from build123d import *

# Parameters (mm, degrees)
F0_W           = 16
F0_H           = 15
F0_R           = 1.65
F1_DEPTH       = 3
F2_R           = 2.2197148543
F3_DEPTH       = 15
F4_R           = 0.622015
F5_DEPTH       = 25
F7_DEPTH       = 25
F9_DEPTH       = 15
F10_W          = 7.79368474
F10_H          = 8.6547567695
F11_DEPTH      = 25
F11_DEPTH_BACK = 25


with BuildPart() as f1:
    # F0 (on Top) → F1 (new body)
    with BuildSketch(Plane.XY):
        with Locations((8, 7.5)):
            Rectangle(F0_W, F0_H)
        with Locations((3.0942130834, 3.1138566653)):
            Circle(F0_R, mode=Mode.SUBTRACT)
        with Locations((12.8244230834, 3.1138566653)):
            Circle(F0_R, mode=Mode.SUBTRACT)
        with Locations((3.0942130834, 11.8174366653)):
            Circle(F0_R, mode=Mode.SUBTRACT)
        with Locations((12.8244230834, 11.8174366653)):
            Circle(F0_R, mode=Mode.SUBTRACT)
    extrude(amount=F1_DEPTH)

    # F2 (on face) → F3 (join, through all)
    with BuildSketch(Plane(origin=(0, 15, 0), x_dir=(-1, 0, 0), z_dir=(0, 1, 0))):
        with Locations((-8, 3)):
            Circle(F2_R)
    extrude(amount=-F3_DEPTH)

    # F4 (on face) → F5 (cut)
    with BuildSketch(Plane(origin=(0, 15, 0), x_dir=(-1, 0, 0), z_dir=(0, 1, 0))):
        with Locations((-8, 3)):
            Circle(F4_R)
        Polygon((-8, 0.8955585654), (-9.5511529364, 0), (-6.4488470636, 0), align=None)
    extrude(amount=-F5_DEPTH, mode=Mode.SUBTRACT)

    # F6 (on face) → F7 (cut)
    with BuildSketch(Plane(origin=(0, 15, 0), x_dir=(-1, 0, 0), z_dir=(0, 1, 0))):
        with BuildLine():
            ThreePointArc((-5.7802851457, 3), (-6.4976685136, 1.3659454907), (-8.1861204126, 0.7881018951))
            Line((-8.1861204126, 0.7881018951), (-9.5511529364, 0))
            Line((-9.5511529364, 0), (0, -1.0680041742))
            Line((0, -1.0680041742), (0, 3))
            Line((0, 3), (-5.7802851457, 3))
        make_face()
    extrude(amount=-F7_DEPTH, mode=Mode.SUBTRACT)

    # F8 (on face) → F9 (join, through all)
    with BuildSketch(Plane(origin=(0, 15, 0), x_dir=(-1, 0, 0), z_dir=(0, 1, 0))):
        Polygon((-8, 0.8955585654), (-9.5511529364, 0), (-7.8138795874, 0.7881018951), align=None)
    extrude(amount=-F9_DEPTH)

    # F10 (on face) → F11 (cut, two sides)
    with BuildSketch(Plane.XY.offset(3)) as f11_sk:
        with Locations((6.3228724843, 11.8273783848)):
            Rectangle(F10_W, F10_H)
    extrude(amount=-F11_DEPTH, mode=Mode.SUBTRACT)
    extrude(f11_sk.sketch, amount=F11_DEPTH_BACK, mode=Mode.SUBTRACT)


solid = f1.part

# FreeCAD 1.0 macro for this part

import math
import FreeCAD as App
import Part
import Sketcher
from FreeCAD import Vector
Q = App.Units.Quantity


def add_polygon(sketch, points):
    """Adds a closed chain of lines whose ends are joined by coincident constraints."""
    first, n = sketch.GeometryCount, len(points)
    for a, b in zip(points, points[1:] + points[:1]):
        sketch.addGeometry(Part.LineSegment(App.Vector(*a, 0), App.Vector(*b, 0)), False)
    for i in range(n):
        sketch.addConstraint(Sketcher.Constraint("Coincident", first + i, 2, first + (i + 1) % n, 1))

doc = App.newDocument("Part")
params = doc.addObject("Spreadsheet::Sheet", "Params")
for row, (alias, value) in enumerate([
    ("sketch1_diameter", "3.3 mm"),
    ("sketch1_width", "16 mm"),
    ("sketch1_height", "15 mm"),
    ("pad1_length", "3 mm"),
    ("pocket1_length", "25 mm"),
    ("pocket2_length", "25 mm"),
    ("pad3_length", "15 mm"),
], start=1):
    params.set(f"A{row}", alias)
    params.set(f"B{row}", "=" + value)
    params.setAlias(f"B{row}", alias)

body = doc.addObject("PartDesign::Body", "Body")

sketch1 = body.newObject("Sketcher::SketchObject", "Sketch")
sketch1.AttachmentSupport = (doc.getObject("XY_Plane"), [""])
sketch1.MapMode = "FlatFace"
add_polygon(sketch1, [(0, 15), (0, 0), (16, 0), (16, 15)])
sketch1.addGeometry(Part.Circle(Vector(3.1, 3.1, 0), Vector(0, 0, 1), 1.6), False)
sketch1.addGeometry(Part.Circle(Vector(12.8, 3.1, 0), Vector(0, 0, 1), 1.6), False)
sketch1.addGeometry(Part.Circle(Vector(3.1, 11.8, 0), Vector(0, 0, 1), 1.6), False)
sketch1.addGeometry(Part.Circle(Vector(12.8, 11.8, 0), Vector(0, 0, 1), 1.6), False)
sketch1.addConstraint([
    Sketcher.Constraint("Vertical", 0),
    Sketcher.Constraint("Horizontal", 1),
    Sketcher.Constraint("Vertical", 2),
    Sketcher.Constraint("Horizontal", 3),
    Sketcher.Constraint("Coincident", 0, 2, -1, 1),
    Sketcher.Constraint("Equal", 4, 5),
    Sketcher.Constraint("Equal", 5, 6),
    Sketcher.Constraint("Equal", 6, 7),
    Sketcher.Constraint("Horizontal", 4, 3, 5, 3),
    Sketcher.Constraint("Horizontal", 6, 3, 7, 3),
    Sketcher.Constraint("Vertical", 4, 3, 6, 3),
    Sketcher.Constraint("Vertical", 5, 3, 7, 3),
    Sketcher.Constraint("Diameter", 4, Q("3.3 mm")),
    Sketcher.Constraint("DistanceX", 1, 1, 1, 2, Q("16 mm")),
    Sketcher.Constraint("DistanceY", 0, 2, 0, 1, Q("15 mm")),
    Sketcher.Constraint("DistanceX", 4, 3, 5, 3, Q("9.73021 mm")),
    Sketcher.Constraint("DistanceY", 4, 3, 6, 3, Q("8.70358 mm")),
    Sketcher.Constraint("DistanceX", -1, 1, 4, 3, Q("3.094213 mm")),
    Sketcher.Constraint("DistanceY", -1, 1, 4, 3, Q("3.113857 mm")),
])
sketch1.setExpression("Constraints[16]", "Params.sketch1_diameter")
sketch1.setExpression("Constraints[17]", "Params.sketch1_width")
sketch1.setExpression("Constraints[18]", "Params.sketch1_height")
pad1 = body.newObject("PartDesign::Pad", "Pad")
pad1.Profile = sketch1
pad1.setExpression("Length", "Params.pad1_length")

sketch2 = body.newObject("Sketcher::SketchObject", "Sketch001")
sketch2.AttachmentSupport = (doc.getObject("XZ_Plane"), [""])
sketch2.MapMode = "FlatFace"
sketch2.AttachmentOffset = App.Placement(Vector(0, 0, -15), App.Rotation())
sketch2.addGeometry(Part.Circle(Vector(8, 3, 0), Vector(0, 0, 1), 2.2), False)
sketch2.addConstraint([
    Sketcher.Constraint("DistanceX", -1, 1, 0, 3, Q("8 mm")),
    Sketcher.Constraint("DistanceY", -1, 1, 0, 3, Q("3 mm")),
    Sketcher.Constraint("Diameter", 0, Q("4.43943 mm")),
])
pad2 = body.newObject("PartDesign::Pad", "Pad001")
pad2.Profile = sketch2
pad2.Type = "UpToLast"

sketch3 = body.newObject("Sketcher::SketchObject", "Sketch002")
sketch3.AttachmentSupport = (doc.getObject("XZ_Plane"), [""])
sketch3.MapMode = "FlatFace"
sketch3.AttachmentOffset = App.Placement(Vector(0, 0, -15), App.Rotation())
sketch3.addGeometry(Part.Circle(Vector(8, 3, 0), Vector(0, 0, 1), 0.6), False)
add_polygon(sketch3, [(8, 0.9), (9.6, 0), (6.4, 0)])
sketch3.addConstraint([
    Sketcher.Constraint("Horizontal", 2),
    Sketcher.Constraint("PointOnObject", 1, 2, -1),
    Sketcher.Constraint("Vertical", 0, 3, 3, 2),
    Sketcher.Constraint("Equal", 1, 3),
    Sketcher.Constraint("Angle", 1, Q("-30 deg")),
    Sketcher.Constraint("DistanceX", -1, 1, 0, 3, Q("8 mm")),
    Sketcher.Constraint("DistanceY", -1, 1, 0, 3, Q("3 mm")),
    Sketcher.Constraint("Diameter", 0, Q("1.24403 mm")),
    Sketcher.Constraint("DistanceX", 2, 2, 2, 1, Q("3.102306 mm")),
])
pocket1 = body.newObject("PartDesign::Pocket", "Pocket")
pocket1.Profile = sketch3
pocket1.setExpression("Length", "Params.pocket1_length")
pocket1.Reversed = True

sketch4 = body.newObject("Sketcher::SketchObject", "Sketch003")
sketch4.AttachmentSupport = (doc.getObject("XZ_Plane"), [""])
sketch4.MapMode = "FlatFace"
sketch4.AttachmentOffset = App.Placement(Vector(0, 0, -15), App.Rotation())
sketch4.addGeometry([
    Part.ArcOfCircle(Part.Circle(Vector(8, 3, 0), Vector(0, 0, 1), 2.219715), math.radians(180), math.radians(274.809829)),
    Part.LineSegment(Vector(8.18612, 0.788102, 0), Vector(9.551153, 0, 0)),
    Part.LineSegment(Vector(9.551153, 0, 0), Vector(0, -1.068004, 0)),
    Part.LineSegment(Vector(0, -1.068004, 0), Vector(0, 3, 0)),
    Part.LineSegment(Vector(0, 3, 0), Vector(5.780285, 3, 0)),
], False)
sketch4.addConstraint([
    Sketcher.Constraint("Coincident", 0, 2, 1, 1),
    Sketcher.Constraint("Coincident", 1, 2, 2, 1),
    Sketcher.Constraint("Coincident", 2, 2, 3, 1),
    Sketcher.Constraint("Coincident", 3, 2, 4, 1),
    Sketcher.Constraint("Coincident", 4, 2, 0, 1),
    Sketcher.Constraint("Vertical", 3),
    Sketcher.Constraint("Horizontal", 4),
    Sketcher.Constraint("PointOnObject", 1, 2, -1),
    Sketcher.Constraint("PointOnObject", 2, 2, -2),
    Sketcher.Constraint("DistanceX", -1, 1, 0, 3, Q("8 mm")),
    Sketcher.Constraint("DistanceY", -1, 1, 0, 3, Q("3 mm")),
    Sketcher.Constraint("DistanceY", -1, 1, 3, 2, Q("3 mm")),
    Sketcher.Constraint("Radius", 0, Q("2.219715 mm")),
    Sketcher.Constraint("DistanceY", -1, 1, 0, 2, Q("0.788102 mm")),
    Sketcher.Constraint("Distance", 2, Q("9.610679 mm")),
    Sketcher.Constraint("DistanceY", 3, 1, 3, 2, Q("4.068004 mm")),
])
pocket2 = body.newObject("PartDesign::Pocket", "Pocket001")
pocket2.Profile = sketch4
pocket2.setExpression("Length", "Params.pocket2_length")
pocket2.Reversed = True

sketch5 = body.newObject("Sketcher::SketchObject", "Sketch004")
sketch5.AttachmentSupport = (doc.getObject("XZ_Plane"), [""])
sketch5.MapMode = "FlatFace"
sketch5.AttachmentOffset = App.Placement(Vector(0, 0, -15), App.Rotation())
add_polygon(sketch5, [(8, 0.9), (9.55, 0), (7.81, 0.79)])
sketch5.addConstraint([
    Sketcher.Constraint("PointOnObject", 0, 2, -1),
    Sketcher.Constraint("Angle", 0, Q("-30 deg")),
    Sketcher.Constraint("Angle", 2, Q("30 deg")),
    Sketcher.Constraint("DistanceX", -1, 1, 2, 2, Q("8 mm")),
    Sketcher.Constraint("DistanceY", -1, 1, 1, 2, Q("0.788102 mm")),
    Sketcher.Constraint("DistanceX", -1, 1, 1, 2, Q("7.81388 mm")),
])
pad3 = body.newObject("PartDesign::Pad", "Pad002")
pad3.Profile = sketch5
pad3.setExpression("Length", "Params.pad3_length")

sketch6 = body.newObject("Sketcher::SketchObject", "Sketch005")
sketch6.AttachmentSupport = (doc.getObject("XY_Plane"), [""])
sketch6.MapMode = "FlatFace"
sketch6.AttachmentOffset = App.Placement(Vector(0, 0, 3), App.Rotation())
add_polygon(sketch6, [(2, 16), (2, 8), (10, 8), (10, 16)])
sketch6.addConstraint([
    Sketcher.Constraint("Vertical", 0),
    Sketcher.Constraint("Horizontal", 1),
    Sketcher.Constraint("Vertical", 2),
    Sketcher.Constraint("Horizontal", 3),
    Sketcher.Constraint("DistanceY", -1, 1, 0, 2, Q("7.5 mm")),
    Sketcher.Constraint("DistanceX", 1, 1, 1, 2, Q("7.793685 mm")),
    Sketcher.Constraint("DistanceY", 0, 2, 0, 1, Q("8.654757 mm")),
    Sketcher.Constraint("DistanceX", -1, 1, 0, 2, Q("2.42603 mm")),
])
pocket3 = body.newObject("PartDesign::Pocket", "Pocket002")
pocket3.Profile = sketch6
pocket3.Type = "ThroughAll"
pocket3.Midplane = True

doc.recompute()
